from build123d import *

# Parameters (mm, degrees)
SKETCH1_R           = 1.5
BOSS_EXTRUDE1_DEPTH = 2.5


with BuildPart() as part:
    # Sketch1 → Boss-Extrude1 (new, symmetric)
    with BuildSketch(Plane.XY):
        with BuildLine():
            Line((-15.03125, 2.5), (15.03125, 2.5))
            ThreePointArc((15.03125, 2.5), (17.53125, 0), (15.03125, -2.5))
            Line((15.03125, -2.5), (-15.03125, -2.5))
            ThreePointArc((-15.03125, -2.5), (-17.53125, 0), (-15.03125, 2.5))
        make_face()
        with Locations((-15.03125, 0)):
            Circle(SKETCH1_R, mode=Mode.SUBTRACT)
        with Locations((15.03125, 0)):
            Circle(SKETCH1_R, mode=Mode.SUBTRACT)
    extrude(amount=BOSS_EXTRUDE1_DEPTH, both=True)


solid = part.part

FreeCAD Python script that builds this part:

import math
import FreeCAD as App
import Part
import Sketcher
Q = App.Units.Quantity

doc = App.newDocument("Part")
body = doc.addObject("PartDesign::Body", "Body")

sketch1 = body.newObject("Sketcher::SketchObject", "Sketch")
sketch1.AttachmentSupport = (doc.getObject("XY_Plane"), [""])
sketch1.MapMode = "FlatFace"
sketch1.addGeometry([
    Part.LineSegment(App.Vector(15, 2.5, 0), App.Vector(-15, 2.5, 0)),
    Part.ArcOfCircle(Part.Circle(App.Vector(-15, 0, 0), App.Vector(0, 0, 1), 2.5), math.radians(90), math.radians(270)),
    Part.LineSegment(App.Vector(-15, -2.5, 0), App.Vector(15, -2.5, 0)),
    Part.ArcOfCircle(Part.Circle(App.Vector(15, 0, 0), App.Vector(0, 0, 1), 2.5), math.radians(-90), math.radians(90)),
    Part.Circle(App.Vector(15, 0, 0), App.Vector(0, 0, 1), 1.5),
    Part.Circle(App.Vector(-15, 0, 0), App.Vector(0, 0, 1), 1.5),
], False)
sketch1.addConstraint([
    Sketcher.Constraint("Tangent", 0, 2, 1, 1),
    Sketcher.Constraint("Tangent", 1, 2, 2, 1),
    Sketcher.Constraint("Tangent", 2, 2, 3, 1),
    Sketcher.Constraint("Tangent", 3, 2, 0, 1),
    Sketcher.Constraint("Horizontal", 0),
    Sketcher.Constraint("Horizontal", 2),
    Sketcher.Constraint("Coincident", 4, 3, 3, 3),
    Sketcher.Constraint("Coincident", 5, 3, 1, 3),
    Sketcher.Constraint("Equal", 4, 5),
    Sketcher.Constraint("Symmetric", 1, 3, 3, 3, -1, 1),
    Sketcher.Constraint("Diameter", 4, Q("3 mm")),
    Sketcher.Constraint("Radius", 1, Q("2.5 mm")),
    Sketcher.Constraint("DistanceX", 0, 2, 0, 1, Q("30.0625 mm")),
])
pad1 = body.newObject("PartDesign::Pad", "Pad")
pad1.Profile = sketch1
pad1.Length = 5
pad1.Midplane = True

doc.recompute()
